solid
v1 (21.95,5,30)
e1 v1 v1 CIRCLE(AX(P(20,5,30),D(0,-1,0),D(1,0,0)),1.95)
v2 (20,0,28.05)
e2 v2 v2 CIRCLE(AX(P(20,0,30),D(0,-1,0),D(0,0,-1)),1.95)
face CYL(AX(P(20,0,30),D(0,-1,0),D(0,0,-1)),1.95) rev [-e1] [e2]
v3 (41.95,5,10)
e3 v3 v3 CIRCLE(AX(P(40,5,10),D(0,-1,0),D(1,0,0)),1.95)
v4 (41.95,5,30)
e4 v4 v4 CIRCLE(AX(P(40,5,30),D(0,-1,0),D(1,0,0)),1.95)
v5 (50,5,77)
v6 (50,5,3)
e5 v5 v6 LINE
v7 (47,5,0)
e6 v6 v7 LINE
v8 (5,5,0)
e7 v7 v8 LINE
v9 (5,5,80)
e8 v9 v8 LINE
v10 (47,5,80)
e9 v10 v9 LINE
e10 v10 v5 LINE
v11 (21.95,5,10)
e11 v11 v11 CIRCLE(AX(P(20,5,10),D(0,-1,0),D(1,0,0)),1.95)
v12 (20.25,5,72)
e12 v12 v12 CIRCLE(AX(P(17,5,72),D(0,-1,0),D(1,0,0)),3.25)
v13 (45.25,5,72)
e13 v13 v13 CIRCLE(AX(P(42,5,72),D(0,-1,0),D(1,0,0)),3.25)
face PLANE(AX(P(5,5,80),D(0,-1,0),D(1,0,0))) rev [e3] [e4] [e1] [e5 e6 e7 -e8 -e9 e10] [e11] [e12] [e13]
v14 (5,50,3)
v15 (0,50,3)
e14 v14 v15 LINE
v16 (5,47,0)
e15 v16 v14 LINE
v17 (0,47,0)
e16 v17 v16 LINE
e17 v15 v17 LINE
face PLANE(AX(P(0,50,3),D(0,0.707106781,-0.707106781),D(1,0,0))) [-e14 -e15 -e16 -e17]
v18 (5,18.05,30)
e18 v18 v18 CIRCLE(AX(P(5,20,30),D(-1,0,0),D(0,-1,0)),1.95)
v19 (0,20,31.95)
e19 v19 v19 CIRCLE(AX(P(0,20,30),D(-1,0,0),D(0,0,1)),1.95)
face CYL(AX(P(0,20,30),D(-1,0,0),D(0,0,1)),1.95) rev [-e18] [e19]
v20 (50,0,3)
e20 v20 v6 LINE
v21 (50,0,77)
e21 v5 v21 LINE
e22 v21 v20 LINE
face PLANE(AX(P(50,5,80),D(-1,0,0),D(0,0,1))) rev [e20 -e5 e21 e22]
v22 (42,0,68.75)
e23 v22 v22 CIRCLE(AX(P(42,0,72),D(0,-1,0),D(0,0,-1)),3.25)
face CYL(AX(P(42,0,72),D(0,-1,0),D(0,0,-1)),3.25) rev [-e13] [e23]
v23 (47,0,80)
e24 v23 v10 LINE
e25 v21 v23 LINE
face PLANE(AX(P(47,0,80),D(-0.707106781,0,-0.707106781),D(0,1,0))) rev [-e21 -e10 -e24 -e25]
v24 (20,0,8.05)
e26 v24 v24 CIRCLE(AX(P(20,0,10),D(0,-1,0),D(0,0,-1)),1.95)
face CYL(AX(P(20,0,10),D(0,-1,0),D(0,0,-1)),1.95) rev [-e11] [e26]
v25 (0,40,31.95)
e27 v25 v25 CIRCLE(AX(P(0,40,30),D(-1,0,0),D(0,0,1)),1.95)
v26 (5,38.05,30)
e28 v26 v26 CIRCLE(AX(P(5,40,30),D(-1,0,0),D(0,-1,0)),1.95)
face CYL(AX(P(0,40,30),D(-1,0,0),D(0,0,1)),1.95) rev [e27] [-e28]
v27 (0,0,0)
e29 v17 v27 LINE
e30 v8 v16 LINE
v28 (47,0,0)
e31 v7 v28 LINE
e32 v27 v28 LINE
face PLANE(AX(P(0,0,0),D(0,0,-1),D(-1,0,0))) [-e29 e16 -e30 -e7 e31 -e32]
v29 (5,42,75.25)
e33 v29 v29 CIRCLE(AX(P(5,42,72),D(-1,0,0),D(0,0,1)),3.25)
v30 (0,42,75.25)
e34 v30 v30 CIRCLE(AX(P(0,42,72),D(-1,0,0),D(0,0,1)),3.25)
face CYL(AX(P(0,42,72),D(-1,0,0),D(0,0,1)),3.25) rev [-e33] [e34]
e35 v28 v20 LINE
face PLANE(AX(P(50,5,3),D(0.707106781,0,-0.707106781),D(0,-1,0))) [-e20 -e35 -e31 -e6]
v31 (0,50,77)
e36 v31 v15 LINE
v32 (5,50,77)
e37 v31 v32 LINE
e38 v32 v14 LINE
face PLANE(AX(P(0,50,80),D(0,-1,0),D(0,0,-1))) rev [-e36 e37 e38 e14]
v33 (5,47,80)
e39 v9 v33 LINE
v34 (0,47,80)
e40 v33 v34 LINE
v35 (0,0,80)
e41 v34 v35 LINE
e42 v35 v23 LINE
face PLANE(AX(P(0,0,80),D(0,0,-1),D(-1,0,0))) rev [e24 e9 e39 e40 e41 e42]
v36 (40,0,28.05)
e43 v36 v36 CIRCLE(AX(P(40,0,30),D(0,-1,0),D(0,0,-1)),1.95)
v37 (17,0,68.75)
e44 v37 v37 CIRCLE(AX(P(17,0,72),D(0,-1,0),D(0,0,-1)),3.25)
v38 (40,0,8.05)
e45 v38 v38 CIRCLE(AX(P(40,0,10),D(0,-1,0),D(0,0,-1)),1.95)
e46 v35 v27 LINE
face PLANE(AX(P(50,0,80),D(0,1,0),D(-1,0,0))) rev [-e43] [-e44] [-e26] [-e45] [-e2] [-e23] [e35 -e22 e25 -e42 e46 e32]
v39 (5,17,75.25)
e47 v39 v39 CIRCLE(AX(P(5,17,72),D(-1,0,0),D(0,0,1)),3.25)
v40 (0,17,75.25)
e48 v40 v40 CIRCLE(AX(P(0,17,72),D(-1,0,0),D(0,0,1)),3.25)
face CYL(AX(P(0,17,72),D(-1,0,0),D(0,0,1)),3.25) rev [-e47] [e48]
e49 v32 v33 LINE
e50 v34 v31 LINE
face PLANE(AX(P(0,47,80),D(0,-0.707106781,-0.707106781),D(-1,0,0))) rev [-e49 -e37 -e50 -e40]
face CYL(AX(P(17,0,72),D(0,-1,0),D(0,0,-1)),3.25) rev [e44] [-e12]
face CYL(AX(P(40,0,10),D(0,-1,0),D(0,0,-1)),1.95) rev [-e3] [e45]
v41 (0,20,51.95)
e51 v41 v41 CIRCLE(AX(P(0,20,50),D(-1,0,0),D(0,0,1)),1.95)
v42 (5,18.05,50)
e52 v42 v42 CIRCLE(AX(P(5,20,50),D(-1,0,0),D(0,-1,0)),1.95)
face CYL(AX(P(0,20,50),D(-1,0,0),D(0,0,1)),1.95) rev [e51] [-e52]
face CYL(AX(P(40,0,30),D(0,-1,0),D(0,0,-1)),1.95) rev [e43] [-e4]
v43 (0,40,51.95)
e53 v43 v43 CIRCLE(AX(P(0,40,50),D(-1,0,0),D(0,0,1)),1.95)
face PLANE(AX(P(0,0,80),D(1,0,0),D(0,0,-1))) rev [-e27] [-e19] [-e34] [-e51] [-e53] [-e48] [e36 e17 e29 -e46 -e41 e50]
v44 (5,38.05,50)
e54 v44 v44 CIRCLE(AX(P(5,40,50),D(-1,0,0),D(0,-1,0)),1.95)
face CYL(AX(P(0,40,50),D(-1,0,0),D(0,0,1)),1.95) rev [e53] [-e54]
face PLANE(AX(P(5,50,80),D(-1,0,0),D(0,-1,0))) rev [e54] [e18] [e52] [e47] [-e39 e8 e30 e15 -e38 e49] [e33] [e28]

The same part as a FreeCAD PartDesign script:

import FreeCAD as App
import Part
import Sketcher
Q = App.Units.Quantity


def edges_at(feature, points):
    """Names of the edges that pass closest to the given points."""
    edges = feature.Shape.Edges
    near = lambda p: min(range(len(edges)), key=lambda i: edges[i].distToShape(Part.Vertex(*p))[0])
    return sorted({f"Edge{near(p) + 1}" for p in points})


def add_polygon(sketch, points):
    """Adds a closed chain of lines whose ends are joined by coincident constraints."""
    first, n = sketch.GeometryCount, len(points)
    for a, b in zip(points, points[1:] + points[:1]):
        sketch.addGeometry(Part.LineSegment(App.Vector(*a, 0), App.Vector(*b, 0)), False)
    for i in range(n):
        sketch.addConstraint(Sketcher.Constraint("Coincident", first + i, 2, first + (i + 1) % n, 1))

doc = App.newDocument("Part")
body = doc.addObject("PartDesign::Body", "Body")

# Sketch on XY plane
sketch1 = body.newObject("Sketcher::SketchObject", "Sketch")
sketch1.AttachmentSupport = (doc.getObject("XY_Plane"), [""])
sketch1.MapMode = "FlatFace"
add_polygon(sketch1, [(0, 50), (0, 0), (50, 0), (50, 5), (5, 5), (5, 50)])  # lines 0-5
sketch1.addConstraint(Sketcher.Constraint("Vertical", 0))
sketch1.addConstraint(Sketcher.Constraint("Horizontal", 1))
sketch1.addConstraint(Sketcher.Constraint("Vertical", 2))
sketch1.addConstraint(Sketcher.Constraint("Horizontal", 3))
sketch1.addConstraint(Sketcher.Constraint("Vertical", 4))
sketch1.addConstraint(Sketcher.Constraint("Horizontal", 5))
sketch1.addConstraint(Sketcher.Constraint("Coincident", 0, 2, -1, 1))
sketch1.addConstraint(Sketcher.Constraint("Equal", 1, 0))
sketch1.addConstraint(Sketcher.Constraint("Equal", 5, 2))
sketch1.addConstraint(Sketcher.Constraint("DistanceX", 1, 1, 1, 2, Q("50 mm")))
sketch1.addConstraint(Sketcher.Constraint("DistanceX", 3, 2, 3, 1, Q("45 mm")))
pad1 = body.newObject("PartDesign::Pad", "Pad")
pad1.Profile = sketch1
pad1.Length = 80

# Sketch on XZ plane
sketch2 = body.newObject("Sketcher::SketchObject", "Sketch001")
sketch2.AttachmentSupport = (doc.getObject("XZ_Plane"), [""])
sketch2.MapMode = "FlatFace"
sketch2.addGeometry(Part.Circle(App.Vector(17, 72, 0), App.Vector(0, 0, 1), 3.2), False)
sketch2.addGeometry(Part.Circle(App.Vector(42, 72, 0), App.Vector(0, 0, 1), 3.2), False)
sketch2.addConstraint(Sketcher.Constraint("Equal", 0, 1))
sketch2.addConstraint(Sketcher.Constraint("Horizontal", 0, 3, 1, 3))
sketch2.addConstraint(Sketcher.Constraint("Diameter", 0, Q("6.5 mm")))
sketch2.addConstraint(Sketcher.Constraint("DistanceX", -1, 1, 0, 3, Q("17 mm")))
sketch2.addConstraint(Sketcher.Constraint("DistanceY", -1, 1, 0, 3, Q("72 mm")))
sketch2.addConstraint(Sketcher.Constraint("DistanceX", -1, 1, 1, 3, Q("42 mm")))
doc.recompute()
hole = body.newObject("PartDesign::Hole", "Hole")
hole.Profile = sketch2
hole.ThreadType = "None"
hole.Diameter = 6.5
hole.DepthType = "ThroughAll"

# Sketch on YZ plane
sketch3 = body.newObject("Sketcher::SketchObject", "Sketch002")
sketch3.AttachmentSupport = (doc.getObject("YZ_Plane"), [""])
sketch3.MapMode = "FlatFace"
sketch3.addGeometry(Part.Circle(App.Vector(42, 72, 0), App.Vector(0, 0, 1), 3.2), False)
sketch3.addGeometry(Part.Circle(App.Vector(17, 72, 0), App.Vector(0, 0, 1), 3.2), False)
sketch3.addConstraint(Sketcher.Constraint("Equal", 0, 1))
sketch3.addConstraint(Sketcher.Constraint("Horizontal", 0, 3, 1, 3))
sketch3.addConstraint(Sketcher.Constraint("Diameter", 0, Q("6.5 mm")))
sketch3.addConstraint(Sketcher.Constraint("DistanceX", -1, 1, 0, 3, Q("42 mm")))
sketch3.addConstraint(Sketcher.Constraint("DistanceY", -1, 1, 0, 3, Q("72 mm")))
sketch3.addConstraint(Sketcher.Constraint("DistanceX", -1, 1, 1, 3, Q("17 mm")))
doc.recompute()
hole2 = body.newObject("PartDesign::Hole", "Hole001")
hole2.Profile = sketch3
hole2.ThreadType = "None"
hole2.Diameter = 6.5
hole2.DepthType = "Dimension"
hole2.Depth = 5
hole2.DrillPoint = "Angled"
hole2.DrillPointAngle = 118
hole2.Reversed = True
doc.recompute()

chamfer = body.newObject("PartDesign::Chamfer", "Chamfer")
chamfer.Base = (hole2, edges_at(hole2, [
    (2.5, 50, 80),
    (2.5, 50, 0),
    (50, 2.5, 80),
    (50, 2.5, 0),
]))
chamfer.Size = 3

# Sketch on XZ plane
sketch4 = body.newObject("Sketcher::SketchObject", "Sketch003")
sketch4.AttachmentSupport = (doc.getObject("XZ_Plane"), [""])
sketch4.MapMode = "FlatFace"
sketch4.addGeometry(Part.Circle(App.Vector(20, 30, 0), App.Vector(0, 0, 1), 1.9), False)
sketch4.addGeometry(Part.Circle(App.Vector(40, 30, 0), App.Vector(0, 0, 1), 1.9), False)
sketch4.addGeometry(Part.Circle(App.Vector(40, 10, 0), App.Vector(0, 0, 1), 1.9), False)
sketch4.addGeometry(Part.Circle(App.Vector(20, 10, 0), App.Vector(0, 0, 1), 1.9), False)
sketch4.addConstraint(Sketcher.Constraint("Equal", 0, 1))
sketch4.addConstraint(Sketcher.Constraint("Equal", 1, 2))
sketch4.addConstraint(Sketcher.Constraint("Equal", 2, 3))
sketch4.addConstraint(Sketcher.Constraint("Horizontal", 0, 3, 1, 3))
sketch4.addConstraint(Sketcher.Constraint("Horizontal", 2, 3, 3, 3))
sketch4.addConstraint(Sketcher.Constraint("Vertical", 1, 3, 2, 3))
sketch4.addConstraint(Sketcher.Constraint("Vertical", 0, 3, 3, 3))
sketch4.addConstraint(Sketcher.Constraint("Diameter", 0, Q("3.9 mm")))
sketch4.addConstraint(Sketcher.Constraint("DistanceX", -1, 1, 0, 3, Q("20 mm")))
sketch4.addConstraint(Sketcher.Constraint("DistanceY", -1, 1, 0, 3, Q("30 mm")))
sketch4.addConstraint(Sketcher.Constraint("DistanceX", -1, 1, 1, 3, Q("40 mm")))
sketch4.addConstraint(Sketcher.Constraint("DistanceY", -1, 1, 2, 3, Q("10 mm")))
doc.recompute()
hole3 = body.newObject("PartDesign::Hole", "Hole002")
hole3.Profile = sketch4
hole3.ThreadType = "None"
hole3.Diameter = 3.9
hole3.DepthType = "ThroughAll"

# Sketch on YZ plane
sketch5 = body.newObject("Sketcher::SketchObject", "Sketch004")
sketch5.AttachmentSupport = (doc.getObject("YZ_Plane"), [""])
sketch5.MapMode = "FlatFace"
sketch5.addGeometry(Part.Circle(App.Vector(40, 30, 0), App.Vector(0, 0, 1), 1.9), False)
sketch5.addGeometry(Part.Circle(App.Vector(40, 50, 0), App.Vector(0, 0, 1), 1.9), False)
sketch5.addGeometry(Part.Circle(App.Vector(20, 50, 0), App.Vector(0, 0, 1), 1.9), False)
sketch5.addGeometry(Part.Circle(App.Vector(20, 30, 0), App.Vector(0, 0, 1), 1.9), False)
sketch5.addConstraint(Sketcher.Constraint("Equal", 0, 1))
sketch5.addConstraint(Sketcher.Constraint("Equal", 1, 2))
sketch5.addConstraint(Sketcher.Constraint("Equal", 2, 3))
sketch5.addConstraint(Sketcher.Constraint("Horizontal", 1, 3, 2, 3))
sketch5.addConstraint(Sketcher.Constraint("Horizontal", 0, 3, 3, 3))
sketch5.addConstraint(Sketcher.Constraint("Vertical", 0, 3, 1, 3))
sketch5.addConstraint(Sketcher.Constraint("Vertical", 2, 3, 3, 3))
sketch5.addConstraint(Sketcher.Constraint("Diameter", 0, Q("3.9 mm")))
sketch5.addConstraint(Sketcher.Constraint("DistanceX", -1, 1, 0, 3, Q("40 mm")))
sketch5.addConstraint(Sketcher.Constraint("DistanceY", -1, 1, 0, 3, Q("30 mm")))
sketch5.addConstraint(Sketcher.Constraint("DistanceY", -1, 1, 1, 3, Q("50 mm")))
sketch5.addConstraint(Sketcher.Constraint("DistanceX", -1, 1, 2, 3, Q("20 mm")))
doc.recompute()
hole4 = body.newObject("PartDesign::Hole", "Hole003")
hole4.Profile = sketch5
hole4.ThreadType = "None"
hole4.Diameter = 3.9
hole4.DepthType = "ThroughAll"
hole4.Reversed = True

doc.recompute()
